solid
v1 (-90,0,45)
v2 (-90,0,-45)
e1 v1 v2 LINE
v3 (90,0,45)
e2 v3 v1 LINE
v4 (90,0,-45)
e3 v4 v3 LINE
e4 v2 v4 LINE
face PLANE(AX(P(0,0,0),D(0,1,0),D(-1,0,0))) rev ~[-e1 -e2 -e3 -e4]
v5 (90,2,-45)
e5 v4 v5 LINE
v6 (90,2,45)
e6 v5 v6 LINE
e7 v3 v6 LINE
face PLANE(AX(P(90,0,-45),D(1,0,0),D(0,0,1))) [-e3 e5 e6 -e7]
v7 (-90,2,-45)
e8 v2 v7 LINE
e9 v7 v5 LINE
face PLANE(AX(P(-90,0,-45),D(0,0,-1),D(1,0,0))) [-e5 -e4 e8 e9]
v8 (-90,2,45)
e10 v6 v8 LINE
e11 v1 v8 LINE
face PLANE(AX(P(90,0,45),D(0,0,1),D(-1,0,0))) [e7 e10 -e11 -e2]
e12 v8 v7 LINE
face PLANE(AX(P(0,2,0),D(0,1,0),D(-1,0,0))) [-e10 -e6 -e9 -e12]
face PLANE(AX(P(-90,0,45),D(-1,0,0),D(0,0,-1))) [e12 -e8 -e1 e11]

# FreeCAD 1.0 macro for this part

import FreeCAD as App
import Part
import Sketcher

V = App.Vector


def add_polygon(sketch, points):
    """Adds a closed chain of lines whose ends are joined by coincident constraints."""
    first, n = sketch.GeometryCount, len(points)
    for a, b in zip(points, points[1:] + points[:1]):
        sketch.addGeometry(Part.LineSegment(App.Vector(*a, 0), App.Vector(*b, 0)), False)
    for i in range(n):
        sketch.addConstraint(Sketcher.Constraint("Coincident", first + i, 2, first + (i + 1) % n, 1))

doc = App.newDocument("Part")
body = doc.addObject("PartDesign::Body", "Body")

# Sketch on XZ plane
sketch1 = doc.addObject("Sketcher::SketchObject", "Sketch")
body.addObject(sketch1)
sketch1.AttachmentSupport = (doc.XZ_Plane, [""])
sketch1.MapMode = "FlatFace"
add_polygon(sketch1, [(90, -45), (-90, -45), (-90, 45), (90, 45)])  # lines 0-3
sketch1.addConstraint([
    Sketcher.Constraint("Horizontal", 0),
    Sketcher.Constraint("Vertical", 1),
    Sketcher.Constraint("Horizontal", 2),
    Sketcher.Constraint("Vertical", 3),
    Sketcher.Constraint("Symmetric", 0, 2, 2, 2, -1, 1),
    Sketcher.Constraint("DistanceX", 0, 2, 0, 1, 180.0),
    Sketcher.Constraint("DistanceY", 1, 1, 1, 2, 90.0),
])
pad1 = doc.addObject("PartDesign::Pad", "Pad")
body.addObject(pad1)
pad1.Profile = sketch1
pad1.Length = 2
pad1.Reversed = True

doc.recompute()
